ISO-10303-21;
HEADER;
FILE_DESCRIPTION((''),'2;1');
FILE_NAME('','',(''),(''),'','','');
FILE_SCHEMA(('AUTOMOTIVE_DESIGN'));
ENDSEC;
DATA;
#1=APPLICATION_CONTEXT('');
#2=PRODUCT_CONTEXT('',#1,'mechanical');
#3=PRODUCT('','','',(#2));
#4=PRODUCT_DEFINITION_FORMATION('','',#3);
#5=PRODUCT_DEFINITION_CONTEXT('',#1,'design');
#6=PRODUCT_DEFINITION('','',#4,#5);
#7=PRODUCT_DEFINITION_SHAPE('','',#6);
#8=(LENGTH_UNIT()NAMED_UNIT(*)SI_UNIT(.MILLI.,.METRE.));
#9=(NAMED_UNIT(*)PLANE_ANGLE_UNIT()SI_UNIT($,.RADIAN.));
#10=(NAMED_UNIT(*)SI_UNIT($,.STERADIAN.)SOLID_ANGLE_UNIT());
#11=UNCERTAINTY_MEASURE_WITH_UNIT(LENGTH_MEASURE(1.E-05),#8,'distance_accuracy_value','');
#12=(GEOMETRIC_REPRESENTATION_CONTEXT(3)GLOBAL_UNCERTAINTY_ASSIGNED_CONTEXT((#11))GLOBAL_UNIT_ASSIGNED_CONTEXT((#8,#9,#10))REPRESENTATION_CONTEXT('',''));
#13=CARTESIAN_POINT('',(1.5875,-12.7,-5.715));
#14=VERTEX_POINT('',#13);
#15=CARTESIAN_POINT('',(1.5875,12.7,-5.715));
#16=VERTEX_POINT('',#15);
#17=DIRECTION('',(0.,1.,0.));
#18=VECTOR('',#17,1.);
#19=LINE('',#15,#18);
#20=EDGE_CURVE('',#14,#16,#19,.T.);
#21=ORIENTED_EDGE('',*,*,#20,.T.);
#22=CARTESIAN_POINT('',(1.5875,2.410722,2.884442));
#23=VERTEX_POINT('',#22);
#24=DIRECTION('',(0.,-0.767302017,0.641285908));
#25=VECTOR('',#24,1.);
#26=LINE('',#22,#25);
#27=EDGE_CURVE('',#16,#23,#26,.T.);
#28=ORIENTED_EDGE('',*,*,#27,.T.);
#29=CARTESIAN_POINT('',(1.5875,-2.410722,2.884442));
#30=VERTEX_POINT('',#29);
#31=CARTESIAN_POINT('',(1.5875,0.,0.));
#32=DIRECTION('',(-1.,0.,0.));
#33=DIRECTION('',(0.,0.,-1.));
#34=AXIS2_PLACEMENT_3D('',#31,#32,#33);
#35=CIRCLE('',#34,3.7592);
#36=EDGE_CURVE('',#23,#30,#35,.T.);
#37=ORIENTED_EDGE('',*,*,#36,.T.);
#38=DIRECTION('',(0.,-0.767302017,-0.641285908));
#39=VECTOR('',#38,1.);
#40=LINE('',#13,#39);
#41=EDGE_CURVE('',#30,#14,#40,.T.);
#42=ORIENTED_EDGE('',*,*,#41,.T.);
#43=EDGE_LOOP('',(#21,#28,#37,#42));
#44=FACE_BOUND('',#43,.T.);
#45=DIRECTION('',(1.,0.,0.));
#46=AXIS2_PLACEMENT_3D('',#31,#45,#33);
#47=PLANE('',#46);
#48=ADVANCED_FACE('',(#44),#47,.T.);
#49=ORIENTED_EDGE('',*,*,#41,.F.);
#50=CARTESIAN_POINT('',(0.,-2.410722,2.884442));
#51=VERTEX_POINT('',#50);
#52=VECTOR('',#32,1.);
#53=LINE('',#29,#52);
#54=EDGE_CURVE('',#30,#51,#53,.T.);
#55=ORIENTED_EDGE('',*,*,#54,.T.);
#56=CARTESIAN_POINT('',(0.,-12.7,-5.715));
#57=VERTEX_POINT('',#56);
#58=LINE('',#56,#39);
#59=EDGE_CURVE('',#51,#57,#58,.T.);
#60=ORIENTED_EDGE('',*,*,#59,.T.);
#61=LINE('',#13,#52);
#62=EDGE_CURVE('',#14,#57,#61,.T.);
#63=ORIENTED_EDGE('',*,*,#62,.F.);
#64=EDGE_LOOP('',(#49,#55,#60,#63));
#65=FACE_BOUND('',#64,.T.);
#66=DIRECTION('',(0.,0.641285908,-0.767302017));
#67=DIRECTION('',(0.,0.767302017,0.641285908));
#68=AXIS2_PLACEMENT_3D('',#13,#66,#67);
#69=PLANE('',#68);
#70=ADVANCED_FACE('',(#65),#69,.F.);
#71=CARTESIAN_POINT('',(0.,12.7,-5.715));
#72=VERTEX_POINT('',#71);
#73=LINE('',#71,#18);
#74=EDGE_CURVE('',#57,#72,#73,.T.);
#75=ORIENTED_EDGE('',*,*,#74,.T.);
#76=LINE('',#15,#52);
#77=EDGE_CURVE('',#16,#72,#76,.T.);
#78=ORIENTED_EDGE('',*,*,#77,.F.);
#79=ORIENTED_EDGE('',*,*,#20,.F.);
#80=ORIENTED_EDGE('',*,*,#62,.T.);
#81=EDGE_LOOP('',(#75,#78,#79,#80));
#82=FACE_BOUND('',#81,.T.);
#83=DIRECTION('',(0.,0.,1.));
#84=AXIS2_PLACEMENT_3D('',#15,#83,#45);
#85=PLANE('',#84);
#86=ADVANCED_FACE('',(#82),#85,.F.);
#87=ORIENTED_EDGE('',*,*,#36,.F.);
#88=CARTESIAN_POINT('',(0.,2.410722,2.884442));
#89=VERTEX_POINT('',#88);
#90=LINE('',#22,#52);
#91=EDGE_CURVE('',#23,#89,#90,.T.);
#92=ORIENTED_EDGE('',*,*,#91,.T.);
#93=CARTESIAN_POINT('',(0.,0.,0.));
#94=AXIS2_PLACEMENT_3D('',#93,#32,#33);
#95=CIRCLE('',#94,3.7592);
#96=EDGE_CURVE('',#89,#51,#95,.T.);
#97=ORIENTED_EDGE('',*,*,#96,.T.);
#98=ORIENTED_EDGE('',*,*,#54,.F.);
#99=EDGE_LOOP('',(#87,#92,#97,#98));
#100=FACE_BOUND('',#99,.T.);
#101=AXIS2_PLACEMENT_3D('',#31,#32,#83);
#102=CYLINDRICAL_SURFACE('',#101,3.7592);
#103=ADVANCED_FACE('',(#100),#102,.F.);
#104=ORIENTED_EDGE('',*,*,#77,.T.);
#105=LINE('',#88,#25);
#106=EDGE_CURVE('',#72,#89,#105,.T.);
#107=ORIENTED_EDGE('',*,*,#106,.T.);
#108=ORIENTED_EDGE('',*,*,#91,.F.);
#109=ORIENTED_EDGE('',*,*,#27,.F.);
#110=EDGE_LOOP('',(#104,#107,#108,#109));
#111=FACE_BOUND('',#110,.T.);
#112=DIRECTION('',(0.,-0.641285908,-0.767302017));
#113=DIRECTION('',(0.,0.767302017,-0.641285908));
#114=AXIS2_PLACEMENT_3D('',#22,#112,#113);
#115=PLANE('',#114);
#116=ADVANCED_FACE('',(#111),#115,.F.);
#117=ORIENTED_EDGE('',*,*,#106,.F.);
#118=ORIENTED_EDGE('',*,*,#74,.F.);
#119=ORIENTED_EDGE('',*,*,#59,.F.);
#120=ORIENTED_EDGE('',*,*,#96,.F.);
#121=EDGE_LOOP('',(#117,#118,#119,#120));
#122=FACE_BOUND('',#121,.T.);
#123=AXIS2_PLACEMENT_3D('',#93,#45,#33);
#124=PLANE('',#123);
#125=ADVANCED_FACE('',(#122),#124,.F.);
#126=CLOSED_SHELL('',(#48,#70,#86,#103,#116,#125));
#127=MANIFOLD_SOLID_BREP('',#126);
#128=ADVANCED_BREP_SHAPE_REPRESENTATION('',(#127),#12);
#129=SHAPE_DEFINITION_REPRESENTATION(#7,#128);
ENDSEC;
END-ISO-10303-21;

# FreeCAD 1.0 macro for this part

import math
import FreeCAD as App
import Part
import Sketcher
from FreeCAD import Vector
Q = App.Units.Quantity

doc = App.newDocument("Part")
body = doc.addObject("PartDesign::Body", "Body")

sketch1 = body.newObject("Sketcher::SketchObject", "Sketch")
sketch1.AttachmentSupport = (doc.getObject("YZ_Plane"), [""])
sketch1.MapMode = "FlatFace"
sketch1.addGeometry(Part.LineSegment(Vector(12.7, -5.715, 0), Vector(2.410722, 2.884442, 0)), False)
sketch1.addGeometry(Part.ArcOfCircle(Part.Circle(Vector(0, 0, 0), Vector(0, 0, 1), 3.7592), math.radians(129.887773), math.radians(410.112227)), False)
sketch1.addGeometry(Part.LineSegment(Vector(-2.410722, 2.884442, 0), Vector(-12.7, -5.715, 0)), False)
sketch1.addGeometry(Part.LineSegment(Vector(-12.7, -5.715, 0), Vector(12.7, -5.715, 0)), False)
sketch1.addConstraint(Sketcher.Constraint("Tangent", 0, 2, 1, 2))
sketch1.addConstraint(Sketcher.Constraint("Tangent", 1, 1, 2, 1))
sketch1.addConstraint(Sketcher.Constraint("Coincident", 2, 2, 3, 1))
sketch1.addConstraint(Sketcher.Constraint("Coincident", 3, 2, 0, 1))
sketch1.addConstraint(Sketcher.Constraint("Horizontal", 3))
sketch1.addConstraint(Sketcher.Constraint("Coincident", 1, 3, -1, 1))
sketch1.addConstraint(Sketcher.Constraint("Horizontal", 0, 2, 1, 1))
sketch1.addConstraint(Sketcher.Constraint("DistanceX", 3, 1, 3, 2, Q("1 in")))
sketch1.addConstraint(Sketcher.Constraint("Radius", 1, Q("0.148 in")))
sketch1.addConstraint(Sketcher.Constraint("DistanceY", 2, 2, -1, 1, Q("0.225 in")))
pad1 = body.newObject("PartDesign::Pad", "Pad")
pad1.Profile = sketch1
pad1.Length = Q("0.0625 in")

doc.recompute()
